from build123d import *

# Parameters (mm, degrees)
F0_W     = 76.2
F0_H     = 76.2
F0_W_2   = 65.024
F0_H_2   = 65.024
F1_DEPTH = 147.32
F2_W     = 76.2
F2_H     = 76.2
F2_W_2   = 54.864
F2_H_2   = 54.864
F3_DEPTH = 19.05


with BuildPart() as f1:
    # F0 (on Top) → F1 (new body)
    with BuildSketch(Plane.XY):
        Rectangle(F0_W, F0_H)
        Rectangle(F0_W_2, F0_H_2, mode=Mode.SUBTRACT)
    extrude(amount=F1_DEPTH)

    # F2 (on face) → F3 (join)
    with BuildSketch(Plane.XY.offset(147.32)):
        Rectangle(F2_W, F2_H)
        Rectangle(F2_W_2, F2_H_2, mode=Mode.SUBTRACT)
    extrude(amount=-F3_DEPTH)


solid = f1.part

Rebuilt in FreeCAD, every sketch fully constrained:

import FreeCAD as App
import Part
import Sketcher
Q = App.Units.Quantity


def add_polygon(sketch, points):
    """Adds a closed chain of lines whose ends are joined by coincident constraints."""
    first, n = sketch.GeometryCount, len(points)
    for a, b in zip(points, points[1:] + points[:1]):
        sketch.addGeometry(Part.LineSegment(App.Vector(*a, 0), App.Vector(*b, 0)), False)
    for i in range(n):
        sketch.addConstraint(Sketcher.Constraint("Coincident", first + i, 2, first + (i + 1) % n, 1))

doc = App.newDocument("Part")
body = doc.addObject("PartDesign::Body", "Body")

sketch1 = body.newObject("Sketcher::SketchObject", "Sketch")
sketch1.AttachmentSupport = (doc.getObject("XY_Plane"), [""])
sketch1.MapMode = "FlatFace"
add_polygon(sketch1, [(-38, 38), (-38, -38), (38, -38), (38, 38)])
add_polygon(sketch1, [(33, -33), (-33, -33), (-33, 33), (33, 33)])
sketch1.addConstraint([
    Sketcher.Constraint("Vertical", 0),
    Sketcher.Constraint("Horizontal", 1),
    Sketcher.Constraint("Vertical", 2),
    Sketcher.Constraint("Horizontal", 3),
    Sketcher.Constraint("Horizontal", 4),
    Sketcher.Constraint("Vertical", 5),
    Sketcher.Constraint("Horizontal", 6),
    Sketcher.Constraint("Vertical", 7),
    Sketcher.Constraint("Symmetric", 0, 2, 2, 2, -1, 1),
    Sketcher.Constraint("Symmetric", 4, 2, 6, 2, -1, 1),
    Sketcher.Constraint("Equal", 3, 0),
    Sketcher.Constraint("Equal", 6, 5),
    Sketcher.Constraint("DistanceX", 1, 1, 1, 2, Q("3 in")),
    Sketcher.Constraint("DistanceX", 4, 2, 4, 1, Q("2.56 in")),
])
pad1 = body.newObject("PartDesign::Pad", "Pad")
pad1.Profile = sketch1
pad1.Length = Q("5.8 in")

sketch2 = body.newObject("Sketcher::SketchObject", "Sketch001")
sketch2.AttachmentSupport = (doc.getObject("XY_Plane"), [""])
sketch2.MapMode = "FlatFace"
sketch2.AttachmentOffset = App.Placement(App.Vector(0, 0, 5.8 * 25.4), App.Rotation())
add_polygon(sketch2, [(-38, 38), (-38, -38), (38, -38), (38, 38)])
add_polygon(sketch2, [(27, -27), (-27, -27), (-27, 27), (27, 27)])
sketch2.addConstraint([
    Sketcher.Constraint("Vertical", 0),
    Sketcher.Constraint("Horizontal", 1),
    Sketcher.Constraint("Vertical", 2),
    Sketcher.Constraint("Horizontal", 3),
    Sketcher.Constraint("Horizontal", 4),
    Sketcher.Constraint("Vertical", 5),
    Sketcher.Constraint("Horizontal", 6),
    Sketcher.Constraint("Vertical", 7),
    Sketcher.Constraint("Symmetric", 0, 2, 2, 2, -1, 1),
    Sketcher.Constraint("Symmetric", 4, 2, 6, 2, -1, 1),
    Sketcher.Constraint("Equal", 3, 0),
    Sketcher.Constraint("Equal", 6, 5),
    Sketcher.Constraint("DistanceX", 1, 1, 1, 2, Q("3 in")),
    Sketcher.Constraint("DistanceX", 4, 2, 4, 1, Q("2.16 in")),
])
pad2 = body.newObject("PartDesign::Pad", "Pad001")
pad2.Profile = sketch2
pad2.Length = Q("0.75 in")
pad2.Reversed = True

doc.recompute()
